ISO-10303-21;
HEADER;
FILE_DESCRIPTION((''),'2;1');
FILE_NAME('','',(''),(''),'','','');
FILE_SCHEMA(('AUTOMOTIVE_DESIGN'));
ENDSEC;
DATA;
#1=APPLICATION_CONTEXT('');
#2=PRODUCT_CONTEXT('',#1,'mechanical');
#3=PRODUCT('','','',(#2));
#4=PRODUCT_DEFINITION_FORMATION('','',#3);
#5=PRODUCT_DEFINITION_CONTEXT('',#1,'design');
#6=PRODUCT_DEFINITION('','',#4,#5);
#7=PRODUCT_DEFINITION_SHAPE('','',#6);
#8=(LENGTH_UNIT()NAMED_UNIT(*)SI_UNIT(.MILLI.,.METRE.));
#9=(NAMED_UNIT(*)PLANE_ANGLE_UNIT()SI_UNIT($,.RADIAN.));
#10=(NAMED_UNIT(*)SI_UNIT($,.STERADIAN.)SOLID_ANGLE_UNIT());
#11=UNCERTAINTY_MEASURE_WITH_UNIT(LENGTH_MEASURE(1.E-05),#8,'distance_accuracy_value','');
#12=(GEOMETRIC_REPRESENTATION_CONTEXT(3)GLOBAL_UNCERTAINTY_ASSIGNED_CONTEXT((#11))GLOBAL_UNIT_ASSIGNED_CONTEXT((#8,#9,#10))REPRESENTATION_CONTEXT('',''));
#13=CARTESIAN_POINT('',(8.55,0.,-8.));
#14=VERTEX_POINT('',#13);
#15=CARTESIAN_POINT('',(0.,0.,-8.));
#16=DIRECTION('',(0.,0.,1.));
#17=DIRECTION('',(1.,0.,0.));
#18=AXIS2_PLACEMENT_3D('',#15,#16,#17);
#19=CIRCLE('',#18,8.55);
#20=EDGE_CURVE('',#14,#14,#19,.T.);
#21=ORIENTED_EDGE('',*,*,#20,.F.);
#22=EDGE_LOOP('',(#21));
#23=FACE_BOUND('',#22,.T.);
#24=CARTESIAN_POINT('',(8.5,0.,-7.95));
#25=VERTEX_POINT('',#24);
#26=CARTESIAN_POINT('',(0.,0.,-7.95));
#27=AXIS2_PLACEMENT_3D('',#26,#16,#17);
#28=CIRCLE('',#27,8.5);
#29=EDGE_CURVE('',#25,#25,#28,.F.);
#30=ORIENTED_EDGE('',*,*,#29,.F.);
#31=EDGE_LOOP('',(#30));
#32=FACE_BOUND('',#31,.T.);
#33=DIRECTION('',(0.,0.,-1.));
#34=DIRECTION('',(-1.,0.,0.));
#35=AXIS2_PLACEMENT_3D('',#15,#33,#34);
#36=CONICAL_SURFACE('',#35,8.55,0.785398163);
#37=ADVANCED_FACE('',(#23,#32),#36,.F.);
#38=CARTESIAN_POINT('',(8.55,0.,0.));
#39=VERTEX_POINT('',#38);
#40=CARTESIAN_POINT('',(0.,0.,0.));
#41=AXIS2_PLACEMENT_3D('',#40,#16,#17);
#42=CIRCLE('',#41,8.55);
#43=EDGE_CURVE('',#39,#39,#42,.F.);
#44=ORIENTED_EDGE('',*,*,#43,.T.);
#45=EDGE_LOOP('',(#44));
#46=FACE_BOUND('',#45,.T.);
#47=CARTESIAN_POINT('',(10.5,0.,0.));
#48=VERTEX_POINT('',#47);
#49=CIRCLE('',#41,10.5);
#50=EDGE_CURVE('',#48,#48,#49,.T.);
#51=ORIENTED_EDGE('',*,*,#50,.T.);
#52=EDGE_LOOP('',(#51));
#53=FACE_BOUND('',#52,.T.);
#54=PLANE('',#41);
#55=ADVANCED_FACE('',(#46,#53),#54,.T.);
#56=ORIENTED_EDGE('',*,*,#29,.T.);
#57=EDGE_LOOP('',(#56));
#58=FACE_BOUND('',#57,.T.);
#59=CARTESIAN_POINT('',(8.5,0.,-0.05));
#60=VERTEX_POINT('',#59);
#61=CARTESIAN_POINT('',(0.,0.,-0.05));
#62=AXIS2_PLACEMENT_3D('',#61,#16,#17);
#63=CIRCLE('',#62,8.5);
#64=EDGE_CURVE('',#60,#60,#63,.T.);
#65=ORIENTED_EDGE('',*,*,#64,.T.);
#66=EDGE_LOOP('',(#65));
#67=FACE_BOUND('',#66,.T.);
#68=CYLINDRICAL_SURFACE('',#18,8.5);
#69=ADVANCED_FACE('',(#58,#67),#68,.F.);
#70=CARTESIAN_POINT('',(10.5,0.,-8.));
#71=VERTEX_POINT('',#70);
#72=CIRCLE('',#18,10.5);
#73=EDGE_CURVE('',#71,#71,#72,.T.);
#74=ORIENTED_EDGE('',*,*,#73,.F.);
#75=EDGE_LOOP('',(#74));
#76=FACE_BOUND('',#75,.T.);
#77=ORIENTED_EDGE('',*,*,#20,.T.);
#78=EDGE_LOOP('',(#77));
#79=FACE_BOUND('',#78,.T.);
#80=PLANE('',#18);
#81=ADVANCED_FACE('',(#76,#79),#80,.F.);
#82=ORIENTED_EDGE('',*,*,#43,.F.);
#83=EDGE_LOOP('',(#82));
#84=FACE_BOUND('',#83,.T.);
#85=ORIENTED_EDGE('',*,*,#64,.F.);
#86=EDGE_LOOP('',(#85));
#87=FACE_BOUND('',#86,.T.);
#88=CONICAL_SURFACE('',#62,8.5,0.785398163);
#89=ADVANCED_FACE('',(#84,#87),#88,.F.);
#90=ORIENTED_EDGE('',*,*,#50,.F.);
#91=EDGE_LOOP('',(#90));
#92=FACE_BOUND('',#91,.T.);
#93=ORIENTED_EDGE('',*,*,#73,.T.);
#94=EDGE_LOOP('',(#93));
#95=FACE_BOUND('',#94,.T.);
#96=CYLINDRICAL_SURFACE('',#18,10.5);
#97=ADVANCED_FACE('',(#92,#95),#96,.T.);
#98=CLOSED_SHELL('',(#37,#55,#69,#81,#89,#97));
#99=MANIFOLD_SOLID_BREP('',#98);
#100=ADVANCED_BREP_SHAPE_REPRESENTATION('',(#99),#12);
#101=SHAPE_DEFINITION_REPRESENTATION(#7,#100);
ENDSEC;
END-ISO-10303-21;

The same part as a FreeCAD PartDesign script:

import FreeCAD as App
import Part
import Sketcher

V = App.Vector


def edges_at(feature, points):
    """Names of the edges that pass closest to the given points."""
    edges = feature.Shape.Edges
    near = lambda p: min(range(len(edges)), key=lambda i: edges[i].distToShape(Part.Vertex(*p))[0])
    return sorted({f"Edge{near(p) + 1}" for p in points})

doc = App.newDocument("Part")
body = doc.addObject("PartDesign::Body", "Body")

sketch1 = body.newObject("Sketcher::SketchObject", "Sketch")
sketch1.AttachmentSupport = (doc.getObject("XY_Plane"), [""])
sketch1.MapMode = "FlatFace"
sketch1.addGeometry(Part.Circle(V(0, 0, 0), V(0, 0, 1), 10), False)
sketch1.addConstraint(Sketcher.Constraint("Coincident", 0, 3, -1, 1))
sketch1.addConstraint(Sketcher.Constraint("Diameter", 0, 21.0))
pad1 = body.newObject("PartDesign::Pad", "Pad")
pad1.Profile = sketch1
pad1.Length = 8
pad1.Reversed = True

sketch2 = body.newObject("Sketcher::SketchObject", "Sketch001")
sketch2.AttachmentSupport = (doc.getObject("XY_Plane"), [""])
sketch2.MapMode = "FlatFace"
sketch2.addGeometry(Part.Circle(V(0, 0, 0), V(0, 0, 1), 8), False)
sketch2.addConstraint(Sketcher.Constraint("Coincident", 0, 3, -1, 1))
sketch2.addConstraint(Sketcher.Constraint("Diameter", 0, 17.0))
pocket1 = body.newObject("PartDesign::Pocket", "Pocket")
pocket1.Profile = sketch2
pocket1.Type = "ThroughAll"
doc.recompute()

chamfer = body.newObject("PartDesign::Chamfer", "Chamfer")
chamfer.Base = (pocket1, edges_at(pocket1, [(-8.5, 0, 0)]))
chamfer.Size = 0.05
doc.recompute()

chamfer2 = body.newObject("PartDesign::Chamfer", "Chamfer001")
chamfer2.Base = (chamfer, edges_at(chamfer, [(-8.5, 0, -8)]))
chamfer2.Size = 0.05

doc.recompute()
